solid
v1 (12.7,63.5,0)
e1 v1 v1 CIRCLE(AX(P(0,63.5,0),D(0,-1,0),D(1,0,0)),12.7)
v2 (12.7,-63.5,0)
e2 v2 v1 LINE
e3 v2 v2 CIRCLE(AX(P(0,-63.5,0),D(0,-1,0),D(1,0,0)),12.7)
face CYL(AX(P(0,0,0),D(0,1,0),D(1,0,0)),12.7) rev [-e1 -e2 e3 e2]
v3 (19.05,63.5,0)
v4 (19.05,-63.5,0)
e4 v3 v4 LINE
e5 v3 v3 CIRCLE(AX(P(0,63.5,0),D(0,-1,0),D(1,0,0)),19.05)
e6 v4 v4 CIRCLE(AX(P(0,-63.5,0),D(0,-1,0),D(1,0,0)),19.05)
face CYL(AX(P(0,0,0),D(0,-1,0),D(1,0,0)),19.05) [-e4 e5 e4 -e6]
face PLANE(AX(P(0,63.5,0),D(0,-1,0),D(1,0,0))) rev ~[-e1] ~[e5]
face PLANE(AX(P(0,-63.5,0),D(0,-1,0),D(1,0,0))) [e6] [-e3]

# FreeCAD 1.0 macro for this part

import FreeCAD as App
import Part
import Sketcher

V = App.Vector
Q = App.Units.Quantity

doc = App.newDocument("Part")
params = doc.addObject("Spreadsheet::Sheet", "Params")
for row, (alias, value) in enumerate([
    ("sketch1_diameter", "1 in"),
    ("sketch1_diameter2", "1.5 in"),
    ("pad1_length", "5 in"),
], start=1):
    params.set(f"A{row}", alias)
    params.set(f"B{row}", "=" + value)
    params.setAlias(f"B{row}", alias)

body = doc.addObject("PartDesign::Body", "Body")

# Sketch on XZ plane
sketch1 = body.newObject("Sketcher::SketchObject", "Sketch")
sketch1.AttachmentSupport = (doc.getObject("XZ_Plane"), [""])
sketch1.MapMode = "FlatFace"
sketch1.addGeometry([
    Part.Circle(V(0, 0, 0), V(0, 0, 1), 19),
    Part.Circle(V(0, 0, 0), V(0, 0, 1), 13),
], False)
sketch1.addConstraint([
    Sketcher.Constraint("Coincident", 0, 3, -1, 1),
    Sketcher.Constraint("Coincident", 1, 3, -1, 1),
    Sketcher.Constraint("Diameter", 1, Q("1 in")),
    Sketcher.Constraint("Diameter", 0, Q("1.5 in")),
])
sketch1.setExpression("Constraints[2]", "Params.sketch1_diameter")
sketch1.setExpression("Constraints[3]", "Params.sketch1_diameter2")
pad1 = body.newObject("PartDesign::Pad", "Pad")
pad1.Profile = sketch1
pad1.setExpression("Length", "Params.pad1_length")
pad1.Midplane = True

doc.recompute()
